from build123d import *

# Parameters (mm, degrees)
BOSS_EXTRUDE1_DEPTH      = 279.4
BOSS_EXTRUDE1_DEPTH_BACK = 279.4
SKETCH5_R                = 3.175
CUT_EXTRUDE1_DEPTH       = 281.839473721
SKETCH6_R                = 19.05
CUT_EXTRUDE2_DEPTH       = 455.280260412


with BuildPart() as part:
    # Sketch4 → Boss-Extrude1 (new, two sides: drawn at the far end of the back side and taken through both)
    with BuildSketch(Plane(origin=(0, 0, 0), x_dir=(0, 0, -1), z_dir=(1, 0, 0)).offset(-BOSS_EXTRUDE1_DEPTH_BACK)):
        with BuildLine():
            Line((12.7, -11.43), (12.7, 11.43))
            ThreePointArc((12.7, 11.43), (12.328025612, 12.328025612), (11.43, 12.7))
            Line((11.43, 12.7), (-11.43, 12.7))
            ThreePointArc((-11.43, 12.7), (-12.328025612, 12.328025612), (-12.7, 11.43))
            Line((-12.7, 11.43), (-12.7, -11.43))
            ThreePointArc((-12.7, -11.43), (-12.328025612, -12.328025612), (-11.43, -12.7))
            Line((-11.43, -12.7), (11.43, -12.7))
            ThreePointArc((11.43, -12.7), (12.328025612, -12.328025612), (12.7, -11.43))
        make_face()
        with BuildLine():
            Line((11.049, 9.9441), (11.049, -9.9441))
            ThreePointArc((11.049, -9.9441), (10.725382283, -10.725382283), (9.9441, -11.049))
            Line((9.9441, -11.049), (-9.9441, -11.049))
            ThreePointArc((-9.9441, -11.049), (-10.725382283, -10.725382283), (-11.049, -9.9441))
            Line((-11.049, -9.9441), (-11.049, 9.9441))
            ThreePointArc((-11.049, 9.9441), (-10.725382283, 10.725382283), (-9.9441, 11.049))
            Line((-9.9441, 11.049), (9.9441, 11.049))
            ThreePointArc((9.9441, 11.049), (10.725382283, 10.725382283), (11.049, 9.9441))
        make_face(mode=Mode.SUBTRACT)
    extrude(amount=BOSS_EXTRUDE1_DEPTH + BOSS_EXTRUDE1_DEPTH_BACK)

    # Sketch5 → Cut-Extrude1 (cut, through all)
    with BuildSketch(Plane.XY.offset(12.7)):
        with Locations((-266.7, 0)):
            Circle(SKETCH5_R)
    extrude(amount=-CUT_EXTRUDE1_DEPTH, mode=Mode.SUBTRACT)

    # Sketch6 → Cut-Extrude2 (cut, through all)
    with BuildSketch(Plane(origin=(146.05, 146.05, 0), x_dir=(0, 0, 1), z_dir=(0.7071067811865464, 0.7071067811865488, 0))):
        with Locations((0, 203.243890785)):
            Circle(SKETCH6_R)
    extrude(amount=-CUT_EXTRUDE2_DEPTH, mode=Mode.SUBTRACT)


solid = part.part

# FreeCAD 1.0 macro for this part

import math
import FreeCAD as App
import Part
import Sketcher
from FreeCAD import Vector
Q = App.Units.Quantity

doc = App.newDocument("Part")
body = doc.addObject("PartDesign::Body", "Body")

sketch1 = doc.addObject("Sketcher::SketchObject", "Sketch")
body.addObject(sketch1)
sketch1.AttachmentSupport = (doc.YZ_Plane, [""])
sketch1.MapMode = "FlatFace"
sketch1.addGeometry([
    Part.LineSegment(Vector(-11.4, -12.7, 0), Vector(11.4, -12.7, 0)),
    Part.ArcOfCircle(Part.Circle(Vector(11.4, -11.4, 0), Vector(0, 0, 1), 1.3), math.radians(-90), math.radians(0)),
    Part.LineSegment(Vector(12.7, -11.4, 0), Vector(12.7, 11.4, 0)),
    Part.ArcOfCircle(Part.Circle(Vector(11.4, 11.4, 0), Vector(0, 0, 1), 1.3), math.radians(0), math.radians(90)),
    Part.LineSegment(Vector(11.4, 12.7, 0), Vector(-11.4, 12.7, 0)),
    Part.ArcOfCircle(Part.Circle(Vector(-11.4, 11.4, 0), Vector(0, 0, 1), 1.3), math.radians(90), math.radians(180)),
    Part.LineSegment(Vector(-12.7, 11.4, 0), Vector(-12.7, -11.4, 0)),
    Part.ArcOfCircle(Part.Circle(Vector(-11.4, -11.4, 0), Vector(0, 0, 1), 1.3), math.radians(180), math.radians(270)),
    Part.ArcOfCircle(Part.Circle(Vector(9.9, -9.9, 0), Vector(0, 0, 1), 1.1), math.radians(-90), math.radians(0)),
    Part.LineSegment(Vector(9.9, -11, 0), Vector(-9.9, -11, 0)),
    Part.ArcOfCircle(Part.Circle(Vector(-9.9, -9.9, 0), Vector(0, 0, 1), 1.1), math.radians(180), math.radians(270)),
    Part.LineSegment(Vector(-11, -9.9, 0), Vector(-11, 9.9, 0)),
    Part.ArcOfCircle(Part.Circle(Vector(-9.9, 9.9, 0), Vector(0, 0, 1), 1.1), math.radians(90), math.radians(180)),
    Part.LineSegment(Vector(-9.9, 11, 0), Vector(9.9, 11, 0)),
    Part.ArcOfCircle(Part.Circle(Vector(9.9, 9.9, 0), Vector(0, 0, 1), 1.1), math.radians(0), math.radians(90)),
    Part.LineSegment(Vector(11, 9.9, 0), Vector(11, -9.9, 0)),
], False)
sketch1.addConstraint([
    Sketcher.Constraint("Tangent", 0, 2, 1, 1),
    Sketcher.Constraint("Tangent", 1, 2, 2, 1),
    Sketcher.Constraint("Tangent", 2, 2, 3, 1),
    Sketcher.Constraint("Tangent", 3, 2, 4, 1),
    Sketcher.Constraint("Tangent", 4, 2, 5, 1),
    Sketcher.Constraint("Tangent", 5, 2, 6, 1),
    Sketcher.Constraint("Tangent", 6, 2, 7, 1),
    Sketcher.Constraint("Tangent", 7, 2, 0, 1),
    Sketcher.Constraint("Tangent", 8, 1, 9, 1),
    Sketcher.Constraint("Tangent", 9, 2, 10, 2),
    Sketcher.Constraint("Tangent", 10, 1, 11, 1),
    Sketcher.Constraint("Tangent", 11, 2, 12, 2),
    Sketcher.Constraint("Tangent", 12, 1, 13, 1),
    Sketcher.Constraint("Tangent", 13, 2, 14, 2),
    Sketcher.Constraint("Tangent", 14, 1, 15, 1),
    Sketcher.Constraint("Tangent", 15, 2, 8, 2),
    Sketcher.Constraint("Horizontal", 0),
    Sketcher.Constraint("Vertical", 2),
    Sketcher.Constraint("Horizontal", 4),
    Sketcher.Constraint("Vertical", 6),
    Sketcher.Constraint("Horizontal", 9),
    Sketcher.Constraint("Vertical", 11),
    Sketcher.Constraint("Horizontal", 13),
    Sketcher.Constraint("Vertical", 15),
    Sketcher.Constraint("Equal", 1, 3),
    Sketcher.Constraint("Equal", 3, 5),
    Sketcher.Constraint("Equal", 5, 7),
    Sketcher.Constraint("Equal", 8, 10),
    Sketcher.Constraint("Equal", 10, 12),
    Sketcher.Constraint("Equal", 12, 14),
    Sketcher.Constraint("Symmetric", 1, 3, 5, 3, -1, 1),
    Sketcher.Constraint("Symmetric", 8, 3, 12, 3, -1, 1),
    Sketcher.Constraint("Equal", 4, 2),
    Sketcher.Constraint("Equal", 13, 11),
    Sketcher.Constraint("Radius", 1, Q("0.05 in")),
    Sketcher.Constraint("DistanceX", 0, 1, 0, 2, Q("0.9 in")),
    Sketcher.Constraint("Radius", 8, Q("0.0435 in")),
    Sketcher.Constraint("DistanceX", 9, 2, 9, 1, Q("0.783 in")),
])
pad1 = doc.addObject("PartDesign::Pad", "Pad")
body.addObject(pad1)
pad1.Profile = sketch1
pad1.Type = "TwoLengths"
pad1.Length = Q("11 in")
pad1.Length2 = Q("11 in")

sketch2 = doc.addObject("Sketcher::SketchObject", "Sketch001")
body.addObject(sketch2)
sketch2.AttachmentSupport = (doc.XY_Plane, [""])
sketch2.MapMode = "FlatFace"
sketch2.AttachmentOffset = App.Placement(Vector(0, 0, 0.5 * 25.4), App.Rotation())
sketch2.addGeometry(Part.Circle(Vector(-266.7, 0, 0), Vector(0, 0, 1), 3.2), False)
sketch2.addConstraint([
    Sketcher.Constraint("PointOnObject", 0, 3, -1),
    Sketcher.Constraint("Diameter", 0, Q("0.25 in")),
    Sketcher.Constraint("DistanceX", 0, 3, -1, 1, Q("10.5 in")),
])
pocket1 = doc.addObject("PartDesign::Pocket", "Pocket")
body.addObject(pocket1)
pocket1.Profile = sketch2
pocket1.Type = "ThroughAll"

sketch3 = doc.addObject("Sketcher::SketchObject", "Sketch002")
body.addObject(sketch3)
sketch3.Placement = App.Placement(Vector(146.05, 146.05, 0), App.Rotation(Vector(0, 0, 1), Vector(0.707106781, -0.707106781, 0), Vector(0.707106781, 0.707106781, 0), "ZXY"))
sketch3.addGeometry(Part.Circle(Vector(0, 203, 0), Vector(0, 0, 1), 19), False)
sketch3.addConstraint([
    Sketcher.Constraint("PointOnObject", 0, 3, -2),
    Sketcher.Constraint("Diameter", 0, Q("1.5 in")),
    Sketcher.Constraint("DistanceY", -1, 1, 0, 3, Q("203.243891 mm")),
])
pocket2 = doc.addObject("PartDesign::Pocket", "Pocket001")
body.addObject(pocket2)
pocket2.Profile = sketch3
pocket2.Type = "ThroughAll"

doc.recompute()
